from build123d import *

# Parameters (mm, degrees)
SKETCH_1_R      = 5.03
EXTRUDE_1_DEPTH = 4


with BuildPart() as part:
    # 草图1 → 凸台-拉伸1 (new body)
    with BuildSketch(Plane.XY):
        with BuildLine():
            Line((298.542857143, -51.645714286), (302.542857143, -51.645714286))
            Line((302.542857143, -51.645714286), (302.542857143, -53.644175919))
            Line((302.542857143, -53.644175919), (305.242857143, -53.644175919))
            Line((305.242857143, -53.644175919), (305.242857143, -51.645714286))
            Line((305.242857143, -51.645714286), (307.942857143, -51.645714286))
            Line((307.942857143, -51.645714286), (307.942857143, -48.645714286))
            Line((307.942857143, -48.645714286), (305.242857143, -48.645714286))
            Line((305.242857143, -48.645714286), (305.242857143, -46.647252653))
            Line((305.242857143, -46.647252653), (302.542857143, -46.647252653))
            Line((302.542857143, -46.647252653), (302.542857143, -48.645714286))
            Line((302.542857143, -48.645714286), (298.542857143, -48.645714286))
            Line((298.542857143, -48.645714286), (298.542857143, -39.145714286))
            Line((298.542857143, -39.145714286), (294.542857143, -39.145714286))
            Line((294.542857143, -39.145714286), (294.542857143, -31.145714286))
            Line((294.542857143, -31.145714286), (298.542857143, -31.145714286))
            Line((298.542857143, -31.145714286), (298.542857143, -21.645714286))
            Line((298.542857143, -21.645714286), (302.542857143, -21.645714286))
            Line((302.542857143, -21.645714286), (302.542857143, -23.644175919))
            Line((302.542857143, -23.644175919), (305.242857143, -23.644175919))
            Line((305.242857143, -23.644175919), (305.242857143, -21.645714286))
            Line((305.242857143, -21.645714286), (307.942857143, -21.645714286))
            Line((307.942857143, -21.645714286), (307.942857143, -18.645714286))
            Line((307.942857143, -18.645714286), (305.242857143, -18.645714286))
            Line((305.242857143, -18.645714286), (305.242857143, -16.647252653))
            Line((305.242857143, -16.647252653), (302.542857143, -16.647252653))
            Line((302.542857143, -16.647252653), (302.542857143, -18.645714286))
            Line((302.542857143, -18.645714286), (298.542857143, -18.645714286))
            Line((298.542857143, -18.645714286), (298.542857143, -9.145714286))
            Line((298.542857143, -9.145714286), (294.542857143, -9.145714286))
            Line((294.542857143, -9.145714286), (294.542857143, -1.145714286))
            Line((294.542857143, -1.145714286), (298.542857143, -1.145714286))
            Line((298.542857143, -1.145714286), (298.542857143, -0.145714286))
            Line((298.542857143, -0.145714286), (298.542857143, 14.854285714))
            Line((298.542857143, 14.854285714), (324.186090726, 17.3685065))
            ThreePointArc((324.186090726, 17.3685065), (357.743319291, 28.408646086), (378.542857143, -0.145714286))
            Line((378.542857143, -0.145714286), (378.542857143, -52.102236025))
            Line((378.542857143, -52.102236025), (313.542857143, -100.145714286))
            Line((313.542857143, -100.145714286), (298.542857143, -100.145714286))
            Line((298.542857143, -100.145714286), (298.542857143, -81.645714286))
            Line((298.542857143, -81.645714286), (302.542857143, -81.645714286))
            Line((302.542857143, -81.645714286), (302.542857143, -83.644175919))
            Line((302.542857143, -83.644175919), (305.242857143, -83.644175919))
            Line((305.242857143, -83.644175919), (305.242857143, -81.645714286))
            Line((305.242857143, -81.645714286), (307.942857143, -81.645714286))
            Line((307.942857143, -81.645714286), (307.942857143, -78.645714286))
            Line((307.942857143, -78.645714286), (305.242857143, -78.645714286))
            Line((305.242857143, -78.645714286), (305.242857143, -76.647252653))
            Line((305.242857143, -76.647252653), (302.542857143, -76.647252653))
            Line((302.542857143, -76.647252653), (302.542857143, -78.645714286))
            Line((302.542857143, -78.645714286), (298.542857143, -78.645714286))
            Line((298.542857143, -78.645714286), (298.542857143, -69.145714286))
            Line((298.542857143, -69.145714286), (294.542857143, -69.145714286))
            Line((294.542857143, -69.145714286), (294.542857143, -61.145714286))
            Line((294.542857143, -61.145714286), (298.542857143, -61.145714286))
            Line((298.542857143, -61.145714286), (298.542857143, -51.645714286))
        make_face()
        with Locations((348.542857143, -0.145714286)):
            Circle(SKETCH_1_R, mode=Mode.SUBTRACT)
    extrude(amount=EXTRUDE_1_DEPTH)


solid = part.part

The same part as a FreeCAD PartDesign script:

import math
import FreeCAD as App
import Part
import Sketcher

V = App.Vector
Q = App.Units.Quantity

doc = App.newDocument("Part")
params = doc.addObject("Spreadsheet::Sheet", "Params")
for row, (alias, value) in enumerate([
    ("sketch1_radius", "30 mm"),
    ("sketch1_diameter", "10.06 mm"),
    ("sketch1_width", "4 mm"),
    ("sketch1_width2", "15 mm"),
    ("sketch1_height", "8 mm"),
    ("pad1_length", "4 mm"),
], start=1):
    params.set(f"A{row}", alias)
    params.set(f"B{row}", "=" + value)
    params.setAlias(f"B{row}", alias)

body = doc.addObject("PartDesign::Body", "Body")

sketch1 = body.newObject("Sketcher::SketchObject", "Sketch")
sketch1.AttachmentSupport = (doc.getObject("XY_Plane"), [""])
sketch1.MapMode = "FlatFace"
sketch1.addGeometry(Part.LineSegment(V(302.542857, -51.645714, 0), V(298.542857, -51.645714, 0)), False)
sketch1.addGeometry(Part.LineSegment(V(298.542857, -51.645714, 0), V(298.542857, -61.145714, 0)), False)
sketch1.addGeometry(Part.LineSegment(V(298.542857, -61.145714, 0), V(294.542857, -61.145714, 0)), False)
sketch1.addGeometry(Part.LineSegment(V(294.542857, -61.145714, 0), V(294.542857, -69.145714, 0)), False)
sketch1.addGeometry(Part.LineSegment(V(294.542857, -69.145714, 0), V(298.542857, -69.145714, 0)), False)
sketch1.addGeometry(Part.LineSegment(V(298.542857, -69.145714, 0), V(298.542857, -78.645714, 0)), False)
sketch1.addGeometry(Part.LineSegment(V(298.542857, -78.645714, 0), V(302.542857, -78.645714, 0)), False)
sketch1.addGeometry(Part.LineSegment(V(302.542857, -78.645714, 0), V(302.542857, -76.647253, 0)), False)
sketch1.addGeometry(Part.LineSegment(V(302.542857, -76.647253, 0), V(305.242857, -76.647253, 0)), False)
sketch1.addGeometry(Part.LineSegment(V(305.242857, -76.647253, 0), V(305.242857, -78.645714, 0)), False)
sketch1.addGeometry(Part.LineSegment(V(305.242857, -78.645714, 0), V(307.942857, -78.645714, 0)), False)
sketch1.addGeometry(Part.LineSegment(V(307.942857, -78.645714, 0), V(307.942857, -81.645714, 0)), False)
sketch1.addGeometry(Part.LineSegment(V(307.942857, -81.645714, 0), V(305.242857, -81.645714, 0)), False)
sketch1.addGeometry(Part.LineSegment(V(305.242857, -81.645714, 0), V(305.242857, -83.644176, 0)), False)
sketch1.addGeometry(Part.LineSegment(V(305.242857, -83.644176, 0), V(302.542857, -83.644176, 0)), False)
sketch1.addGeometry(Part.LineSegment(V(302.542857, -83.644176, 0), V(302.542857, -81.645714, 0)), False)
sketch1.addGeometry(Part.LineSegment(V(302.542857, -81.645714, 0), V(298.542857, -81.645714, 0)), False)
sketch1.addGeometry(Part.LineSegment(V(298.542857, -81.645714, 0), V(298.542857, -100.145714, 0)), False)
sketch1.addGeometry(Part.LineSegment(V(298.542857, -100.145714, 0), V(313.542857, -100.145714, 0)), False)
sketch1.addGeometry(Part.LineSegment(V(313.542857, -100.145714, 0), V(378.542857, -52.102236, 0)), False)
sketch1.addGeometry(Part.LineSegment(V(378.542857, -52.102236, 0), V(378.542857, -0.145714, 0)), False)
sketch1.addGeometry(Part.ArcOfCircle(Part.Circle(V(348.542857, -0.145714, 0), V(0, 0, 1), 30), math.radians(0), math.radians(144.28122)), False)
sketch1.addGeometry(Part.LineSegment(V(324.186091, 17.368506, 0), V(298.542857, 14.854286, 0)), False)
sketch1.addGeometry(Part.LineSegment(V(298.542857, 14.854286, 0), V(298.542857, -1.145714, 0)), False)
sketch1.addGeometry(Part.LineSegment(V(298.542857, -1.145714, 0), V(294.542857, -1.145714, 0)), False)
sketch1.addGeometry(Part.LineSegment(V(294.542857, -1.145714, 0), V(294.542857, -9.145714, 0)), False)
sketch1.addGeometry(Part.LineSegment(V(294.542857, -9.145714, 0), V(298.542857, -9.145714, 0)), False)
sketch1.addGeometry(Part.LineSegment(V(298.542857, -9.145714, 0), V(298.542857, -18.645714, 0)), False)
sketch1.addGeometry(Part.LineSegment(V(298.542857, -18.645714, 0), V(302.542857, -18.645714, 0)), False)
sketch1.addGeometry(Part.LineSegment(V(302.542857, -18.645714, 0), V(302.542857, -16.647253, 0)), False)
sketch1.addGeometry(Part.LineSegment(V(302.542857, -16.647253, 0), V(305.242857, -16.647253, 0)), False)
sketch1.addGeometry(Part.LineSegment(V(305.242857, -16.647253, 0), V(305.242857, -18.645714, 0)), False)
sketch1.addGeometry(Part.LineSegment(V(305.242857, -18.645714, 0), V(307.942857, -18.645714, 0)), False)
sketch1.addGeometry(Part.LineSegment(V(307.942857, -18.645714, 0), V(307.942857, -21.645714, 0)), False)
sketch1.addGeometry(Part.LineSegment(V(307.942857, -21.645714, 0), V(305.242857, -21.645714, 0)), False)
sketch1.addGeometry(Part.LineSegment(V(305.242857, -21.645714, 0), V(305.242857, -23.644176, 0)), False)
sketch1.addGeometry(Part.LineSegment(V(305.242857, -23.644176, 0), V(302.542857, -23.644176, 0)), False)
sketch1.addGeometry(Part.LineSegment(V(302.542857, -23.644176, 0), V(302.542857, -21.645714, 0)), False)
sketch1.addGeometry(Part.LineSegment(V(302.542857, -21.645714, 0), V(298.542857, -21.645714, 0)), False)
sketch1.addGeometry(Part.LineSegment(V(298.542857, -21.645714, 0), V(298.542857, -31.145714, 0)), False)
sketch1.addGeometry(Part.LineSegment(V(298.542857, -31.145714, 0), V(294.542857, -31.145714, 0)), False)
sketch1.addGeometry(Part.LineSegment(V(294.542857, -31.145714, 0), V(294.542857, -39.145714, 0)), False)
sketch1.addGeometry(Part.LineSegment(V(294.542857, -39.145714, 0), V(298.542857, -39.145714, 0)), False)
sketch1.addGeometry(Part.LineSegment(V(298.542857, -39.145714, 0), V(298.542857, -48.645714, 0)), False)
sketch1.addGeometry(Part.LineSegment(V(298.542857, -48.645714, 0), V(302.542857, -48.645714, 0)), False)
sketch1.addGeometry(Part.LineSegment(V(302.542857, -48.645714, 0), V(302.542857, -46.647253, 0)), False)
sketch1.addGeometry(Part.LineSegment(V(302.542857, -46.647253, 0), V(305.242857, -46.647253, 0)), False)
sketch1.addGeometry(Part.LineSegment(V(305.242857, -46.647253, 0), V(305.242857, -48.645714, 0)), False)
sketch1.addGeometry(Part.LineSegment(V(305.242857, -48.645714, 0), V(307.942857, -48.645714, 0)), False)
sketch1.addGeometry(Part.LineSegment(V(307.942857, -48.645714, 0), V(307.942857, -51.645714, 0)), False)
sketch1.addGeometry(Part.LineSegment(V(307.942857, -51.645714, 0), V(305.242857, -51.645714, 0)), False)
sketch1.addGeometry(Part.LineSegment(V(305.242857, -51.645714, 0), V(305.242857, -53.644176, 0)), False)
sketch1.addGeometry(Part.LineSegment(V(305.242857, -53.644176, 0), V(302.542857, -53.644176, 0)), False)
sketch1.addGeometry(Part.LineSegment(V(302.542857, -53.644176, 0), V(302.542857, -51.645714, 0)), False)
sketch1.addGeometry(Part.Circle(V(348.542857, -0.145714, 0), V(0, 0, 1), 5.03), False)
sketch1.addConstraint(Sketcher.Constraint("Coincident", 0, 2, 1, 1))
sketch1.addConstraint(Sketcher.Constraint("Coincident", 1, 2, 2, 1))
sketch1.addConstraint(Sketcher.Constraint("Coincident", 2, 2, 3, 1))
sketch1.addConstraint(Sketcher.Constraint("Coincident", 3, 2, 4, 1))
sketch1.addConstraint(Sketcher.Constraint("Coincident", 4, 2, 5, 1))
sketch1.addConstraint(Sketcher.Constraint("Coincident", 5, 2, 6, 1))
sketch1.addConstraint(Sketcher.Constraint("Coincident", 6, 2, 7, 1))
sketch1.addConstraint(Sketcher.Constraint("Coincident", 7, 2, 8, 1))
sketch1.addConstraint(Sketcher.Constraint("Coincident", 8, 2, 9, 1))
sketch1.addConstraint(Sketcher.Constraint("Coincident", 9, 2, 10, 1))
sketch1.addConstraint(Sketcher.Constraint("Coincident", 10, 2, 11, 1))
sketch1.addConstraint(Sketcher.Constraint("Coincident", 11, 2, 12, 1))
sketch1.addConstraint(Sketcher.Constraint("Coincident", 12, 2, 13, 1))
sketch1.addConstraint(Sketcher.Constraint("Coincident", 13, 2, 14, 1))
sketch1.addConstraint(Sketcher.Constraint("Coincident", 14, 2, 15, 1))
sketch1.addConstraint(Sketcher.Constraint("Coincident", 15, 2, 16, 1))
sketch1.addConstraint(Sketcher.Constraint("Coincident", 16, 2, 17, 1))
sketch1.addConstraint(Sketcher.Constraint("Coincident", 17, 2, 18, 1))
sketch1.addConstraint(Sketcher.Constraint("Coincident", 18, 2, 19, 1))
sketch1.addConstraint(Sketcher.Constraint("Coincident", 19, 2, 20, 1))
sketch1.addConstraint(Sketcher.Constraint("Tangent", 20, 2, 21, 1))
sketch1.addConstraint(Sketcher.Constraint("Coincident", 21, 2, 22, 1))
sketch1.addConstraint(Sketcher.Constraint("Coincident", 22, 2, 23, 1))
sketch1.addConstraint(Sketcher.Constraint("Coincident", 23, 2, 24, 1))
sketch1.addConstraint(Sketcher.Constraint("Coincident", 24, 2, 25, 1))
sketch1.addConstraint(Sketcher.Constraint("Coincident", 25, 2, 26, 1))
sketch1.addConstraint(Sketcher.Constraint("Coincident", 26, 2, 27, 1))
sketch1.addConstraint(Sketcher.Constraint("Coincident", 27, 2, 28, 1))
sketch1.addConstraint(Sketcher.Constraint("Coincident", 28, 2, 29, 1))
sketch1.addConstraint(Sketcher.Constraint("Coincident", 29, 2, 30, 1))
sketch1.addConstraint(Sketcher.Constraint("Coincident", 30, 2, 31, 1))
sketch1.addConstraint(Sketcher.Constraint("Coincident", 31, 2, 32, 1))
sketch1.addConstraint(Sketcher.Constraint("Coincident", 32, 2, 33, 1))
sketch1.addConstraint(Sketcher.Constraint("Coincident", 33, 2, 34, 1))
sketch1.addConstraint(Sketcher.Constraint("Coincident", 34, 2, 35, 1))
sketch1.addConstraint(Sketcher.Constraint("Coincident", 35, 2, 36, 1))
sketch1.addConstraint(Sketcher.Constraint("Coincident", 36, 2, 37, 1))
sketch1.addConstraint(Sketcher.Constraint("Coincident", 37, 2, 38, 1))
sketch1.addConstraint(Sketcher.Constraint("Coincident", 38, 2, 39, 1))
sketch1.addConstraint(Sketcher.Constraint("Coincident", 39, 2, 40, 1))
sketch1.addConstraint(Sketcher.Constraint("Coincident", 40, 2, 41, 1))
sketch1.addConstraint(Sketcher.Constraint("Coincident", 41, 2, 42, 1))
sketch1.addConstraint(Sketcher.Constraint("Coincident", 42, 2, 43, 1))
sketch1.addConstraint(Sketcher.Constraint("Coincident", 43, 2, 44, 1))
sketch1.addConstraint(Sketcher.Constraint("Coincident", 44, 2, 45, 1))
sketch1.addConstraint(Sketcher.Constraint("Coincident", 45, 2, 46, 1))
sketch1.addConstraint(Sketcher.Constraint("Coincident", 46, 2, 47, 1))
sketch1.addConstraint(Sketcher.Constraint("Coincident", 47, 2, 48, 1))
sketch1.addConstraint(Sketcher.Constraint("Coincident", 48, 2, 49, 1))
sketch1.addConstraint(Sketcher.Constraint("Coincident", 49, 2, 50, 1))
sketch1.addConstraint(Sketcher.Constraint("Coincident", 50, 2, 51, 1))
sketch1.addConstraint(Sketcher.Constraint("Coincident", 51, 2, 52, 1))
sketch1.addConstraint(Sketcher.Constraint("Coincident", 52, 2, 53, 1))
sketch1.addConstraint(Sketcher.Constraint("Coincident", 53, 2, 0, 1))
sketch1.addConstraint(Sketcher.Constraint("Horizontal", 0))
sketch1.addConstraint(Sketcher.Constraint("Vertical", 1))
sketch1.addConstraint(Sketcher.Constraint("Horizontal", 2))
sketch1.addConstraint(Sketcher.Constraint("Vertical", 3))
sketch1.addConstraint(Sketcher.Constraint("Horizontal", 4))
sketch1.addConstraint(Sketcher.Constraint("Vertical", 5))
sketch1.addConstraint(Sketcher.Constraint("Horizontal", 6))
sketch1.addConstraint(Sketcher.Constraint("Vertical", 7))
sketch1.addConstraint(Sketcher.Constraint("Horizontal", 8))
sketch1.addConstraint(Sketcher.Constraint("Vertical", 9))
sketch1.addConstraint(Sketcher.Constraint("Horizontal", 10))
sketch1.addConstraint(Sketcher.Constraint("Vertical", 11))
sketch1.addConstraint(Sketcher.Constraint("Horizontal", 12))
sketch1.addConstraint(Sketcher.Constraint("Vertical", 13))
sketch1.addConstraint(Sketcher.Constraint("Horizontal", 14))
sketch1.addConstraint(Sketcher.Constraint("Vertical", 15))
sketch1.addConstraint(Sketcher.Constraint("Horizontal", 16))
sketch1.addConstraint(Sketcher.Constraint("Vertical", 17))
sketch1.addConstraint(Sketcher.Constraint("Horizontal", 18))
sketch1.addConstraint(Sketcher.Constraint("Vertical", 20))
sketch1.addConstraint(Sketcher.Constraint("Vertical", 23))
sketch1.addConstraint(Sketcher.Constraint("Horizontal", 24))
sketch1.addConstraint(Sketcher.Constraint("Vertical", 25))
sketch1.addConstraint(Sketcher.Constraint("Horizontal", 26))
sketch1.addConstraint(Sketcher.Constraint("Vertical", 27))
sketch1.addConstraint(Sketcher.Constraint("Horizontal", 28))
sketch1.addConstraint(Sketcher.Constraint("Vertical", 29))
sketch1.addConstraint(Sketcher.Constraint("Horizontal", 30))
sketch1.addConstraint(Sketcher.Constraint("Vertical", 31))
sketch1.addConstraint(Sketcher.Constraint("Horizontal", 32))
sketch1.addConstraint(Sketcher.Constraint("Vertical", 33))
sketch1.addConstraint(Sketcher.Constraint("Horizontal", 34))
sketch1.addConstraint(Sketcher.Constraint("Vertical", 35))
sketch1.addConstraint(Sketcher.Constraint("Horizontal", 36))
sketch1.addConstraint(Sketcher.Constraint("Vertical", 37))
sketch1.addConstraint(Sketcher.Constraint("Horizontal", 38))
sketch1.addConstraint(Sketcher.Constraint("Vertical", 39))
sketch1.addConstraint(Sketcher.Constraint("Horizontal", 40))
sketch1.addConstraint(Sketcher.Constraint("Vertical", 41))
sketch1.addConstraint(Sketcher.Constraint("Horizontal", 42))
sketch1.addConstraint(Sketcher.Constraint("Vertical", 43))
sketch1.addConstraint(Sketcher.Constraint("Horizontal", 44))
sketch1.addConstraint(Sketcher.Constraint("Vertical", 45))
sketch1.addConstraint(Sketcher.Constraint("Horizontal", 46))
sketch1.addConstraint(Sketcher.Constraint("Vertical", 47))
sketch1.addConstraint(Sketcher.Constraint("Horizontal", 48))
sketch1.addConstraint(Sketcher.Constraint("Vertical", 49))
sketch1.addConstraint(Sketcher.Constraint("Horizontal", 50))
sketch1.addConstraint(Sketcher.Constraint("Vertical", 51))
sketch1.addConstraint(Sketcher.Constraint("Horizontal", 52))
sketch1.addConstraint(Sketcher.Constraint("Vertical", 53))
sketch1.addConstraint(Sketcher.Constraint("Coincident", 54, 3, 21, 3))
sketch1.addConstraint(Sketcher.Constraint("Horizontal", 6, 2, 9, 2))
sketch1.addConstraint(Sketcher.Constraint("Horizontal", 12, 2, 15, 2))
sketch1.addConstraint(Sketcher.Constraint("Horizontal", 28, 2, 31, 2))
sketch1.addConstraint(Sketcher.Constraint("Horizontal", 34, 2, 37, 2))
sketch1.addConstraint(Sketcher.Constraint("Horizontal", 44, 2, 47, 2))
sketch1.addConstraint(Sketcher.Constraint("Horizontal", 0, 2, 49, 2))
sketch1.addConstraint(Sketcher.Constraint("Vertical", 1, 2, 4, 2))
sketch1.addConstraint(Sketcher.Constraint("Vertical", 9, 2, 12, 2))
sketch1.addConstraint(Sketcher.Constraint("Vertical", 7, 2, 14, 2))
sketch1.addConstraint(Sketcher.Constraint("Vertical", 5, 2, 16, 2))
sketch1.addConstraint(Sketcher.Constraint("Vertical", 17, 2, 22, 2))
sketch1.addConstraint(Sketcher.Constraint("Vertical", 3, 2, 24, 2))
sketch1.addConstraint(Sketcher.Constraint("Vertical", 23, 2, 26, 2))
sketch1.addConstraint(Sketcher.Constraint("Vertical", 15, 2, 28, 2))
sketch1.addConstraint(Sketcher.Constraint("Vertical", 13, 2, 30, 2))
sketch1.addConstraint(Sketcher.Constraint("Vertical", 11, 2, 32, 2))
sketch1.addConstraint(Sketcher.Constraint("Vertical", 31, 2, 34, 2))
sketch1.addConstraint(Sketcher.Constraint("Vertical", 29, 2, 36, 2))
sketch1.addConstraint(Sketcher.Constraint("Vertical", 27, 2, 38, 2))
sketch1.addConstraint(Sketcher.Constraint("Vertical", 25, 2, 40, 2))
sketch1.addConstraint(Sketcher.Constraint("Vertical", 39, 2, 42, 2))
sketch1.addConstraint(Sketcher.Constraint("Vertical", 37, 2, 44, 2))
sketch1.addConstraint(Sketcher.Constraint("Vertical", 35, 2, 46, 2))
sketch1.addConstraint(Sketcher.Constraint("Vertical", 33, 2, 48, 2))
sketch1.addConstraint(Sketcher.Constraint("Vertical", 47, 2, 50, 2))
sketch1.addConstraint(Sketcher.Constraint("Vertical", 45, 2, 52, 2))
sketch1.addConstraint(Sketcher.Constraint("Equal", 0, 2))
sketch1.addConstraint(Sketcher.Constraint("Equal", 8, 10))
sketch1.addConstraint(Sketcher.Constraint("Equal", 1, 5))
sketch1.addConstraint(Sketcher.Constraint("Equal", 9, 13))
sketch1.addConstraint(Sketcher.Constraint("Equal", 3, 25))
sketch1.addConstraint(Sketcher.Constraint("Equal", 5, 27))
sketch1.addConstraint(Sketcher.Constraint("Equal", 15, 29))
sketch1.addConstraint(Sketcher.Constraint("Equal", 11, 33))
sketch1.addConstraint(Sketcher.Constraint("Equal", 31, 35))
sketch1.addConstraint(Sketcher.Constraint("Equal", 27, 39))
sketch1.addConstraint(Sketcher.Constraint("Equal", 25, 41))
sketch1.addConstraint(Sketcher.Constraint("Equal", 39, 43))
sketch1.addConstraint(Sketcher.Constraint("Equal", 37, 45))
sketch1.addConstraint(Sketcher.Constraint("Equal", 33, 49))
sketch1.addConstraint(Sketcher.Constraint("Equal", 47, 51))
sketch1.addConstraint(Sketcher.Constraint("Radius", 21, Q("30 mm")))
sketch1.addConstraint(Sketcher.Constraint("Diameter", 54, Q("10.06 mm")))
sketch1.addConstraint(Sketcher.Constraint("DistanceX", 0, 2, 0, 1, Q("4 mm")))
sketch1.addConstraint(Sketcher.Constraint("DistanceX", 18, 1, 18, 2, Q("15 mm")))
sketch1.addConstraint(Sketcher.Constraint("DistanceY", 3, 2, 3, 1, Q("8 mm")))
sketch1.addConstraint(Sketcher.Constraint("DistanceY", 11, 2, 11, 1, Q("3 mm")))
sketch1.addConstraint(Sketcher.Constraint("DistanceY", 23, 2, 23, 1, Q("16 mm")))
sketch1.addConstraint(Sketcher.Constraint("DistanceX", 8, 1, 8, 2, Q("2.7 mm")))
sketch1.addConstraint(Sketcher.Constraint("DistanceY", 1, 2, 1, 1, Q("9.5 mm")))
sketch1.addConstraint(Sketcher.Constraint("DistanceY", 17, 2, 17, 1, Q("18.5 mm")))
sketch1.addConstraint(Sketcher.Constraint("DistanceX", 0, 2, 21, 3, Q("50 mm")))
sketch1.addConstraint(Sketcher.Constraint("DistanceY", 1, 2, 21, 3, Q("61 mm")))
sketch1.addConstraint(Sketcher.Constraint("DistanceY", 7, 1, 7, 2, Q("1.998462 mm")))
sketch1.addConstraint(Sketcher.Constraint("DistanceY", 20, 1, 20, 2, Q("51.956522 mm")))
sketch1.addConstraint(Sketcher.Constraint("DistanceX", -1, 1, 21, 2, Q("324.186091 mm")))
sketch1.addConstraint(Sketcher.Constraint("DistanceY", 21, 3, 21, 2, Q("17.514221 mm")))
sketch1.addConstraint(Sketcher.Constraint("DistanceY", 21, 3, -1, 1, Q("0.145714 mm")))
sketch1.setExpression("Constraints[147]", "Params.sketch1_radius")
sketch1.setExpression("Constraints[148]", "Params.sketch1_diameter")
sketch1.setExpression("Constraints[149]", "Params.sketch1_width")
sketch1.setExpression("Constraints[150]", "Params.sketch1_width2")
sketch1.setExpression("Constraints[151]", "Params.sketch1_height")
pad1 = body.newObject("PartDesign::Pad", "Pad")
pad1.Profile = sketch1
pad1.setExpression("Length", "Params.pad1_length")

doc.recompute()
